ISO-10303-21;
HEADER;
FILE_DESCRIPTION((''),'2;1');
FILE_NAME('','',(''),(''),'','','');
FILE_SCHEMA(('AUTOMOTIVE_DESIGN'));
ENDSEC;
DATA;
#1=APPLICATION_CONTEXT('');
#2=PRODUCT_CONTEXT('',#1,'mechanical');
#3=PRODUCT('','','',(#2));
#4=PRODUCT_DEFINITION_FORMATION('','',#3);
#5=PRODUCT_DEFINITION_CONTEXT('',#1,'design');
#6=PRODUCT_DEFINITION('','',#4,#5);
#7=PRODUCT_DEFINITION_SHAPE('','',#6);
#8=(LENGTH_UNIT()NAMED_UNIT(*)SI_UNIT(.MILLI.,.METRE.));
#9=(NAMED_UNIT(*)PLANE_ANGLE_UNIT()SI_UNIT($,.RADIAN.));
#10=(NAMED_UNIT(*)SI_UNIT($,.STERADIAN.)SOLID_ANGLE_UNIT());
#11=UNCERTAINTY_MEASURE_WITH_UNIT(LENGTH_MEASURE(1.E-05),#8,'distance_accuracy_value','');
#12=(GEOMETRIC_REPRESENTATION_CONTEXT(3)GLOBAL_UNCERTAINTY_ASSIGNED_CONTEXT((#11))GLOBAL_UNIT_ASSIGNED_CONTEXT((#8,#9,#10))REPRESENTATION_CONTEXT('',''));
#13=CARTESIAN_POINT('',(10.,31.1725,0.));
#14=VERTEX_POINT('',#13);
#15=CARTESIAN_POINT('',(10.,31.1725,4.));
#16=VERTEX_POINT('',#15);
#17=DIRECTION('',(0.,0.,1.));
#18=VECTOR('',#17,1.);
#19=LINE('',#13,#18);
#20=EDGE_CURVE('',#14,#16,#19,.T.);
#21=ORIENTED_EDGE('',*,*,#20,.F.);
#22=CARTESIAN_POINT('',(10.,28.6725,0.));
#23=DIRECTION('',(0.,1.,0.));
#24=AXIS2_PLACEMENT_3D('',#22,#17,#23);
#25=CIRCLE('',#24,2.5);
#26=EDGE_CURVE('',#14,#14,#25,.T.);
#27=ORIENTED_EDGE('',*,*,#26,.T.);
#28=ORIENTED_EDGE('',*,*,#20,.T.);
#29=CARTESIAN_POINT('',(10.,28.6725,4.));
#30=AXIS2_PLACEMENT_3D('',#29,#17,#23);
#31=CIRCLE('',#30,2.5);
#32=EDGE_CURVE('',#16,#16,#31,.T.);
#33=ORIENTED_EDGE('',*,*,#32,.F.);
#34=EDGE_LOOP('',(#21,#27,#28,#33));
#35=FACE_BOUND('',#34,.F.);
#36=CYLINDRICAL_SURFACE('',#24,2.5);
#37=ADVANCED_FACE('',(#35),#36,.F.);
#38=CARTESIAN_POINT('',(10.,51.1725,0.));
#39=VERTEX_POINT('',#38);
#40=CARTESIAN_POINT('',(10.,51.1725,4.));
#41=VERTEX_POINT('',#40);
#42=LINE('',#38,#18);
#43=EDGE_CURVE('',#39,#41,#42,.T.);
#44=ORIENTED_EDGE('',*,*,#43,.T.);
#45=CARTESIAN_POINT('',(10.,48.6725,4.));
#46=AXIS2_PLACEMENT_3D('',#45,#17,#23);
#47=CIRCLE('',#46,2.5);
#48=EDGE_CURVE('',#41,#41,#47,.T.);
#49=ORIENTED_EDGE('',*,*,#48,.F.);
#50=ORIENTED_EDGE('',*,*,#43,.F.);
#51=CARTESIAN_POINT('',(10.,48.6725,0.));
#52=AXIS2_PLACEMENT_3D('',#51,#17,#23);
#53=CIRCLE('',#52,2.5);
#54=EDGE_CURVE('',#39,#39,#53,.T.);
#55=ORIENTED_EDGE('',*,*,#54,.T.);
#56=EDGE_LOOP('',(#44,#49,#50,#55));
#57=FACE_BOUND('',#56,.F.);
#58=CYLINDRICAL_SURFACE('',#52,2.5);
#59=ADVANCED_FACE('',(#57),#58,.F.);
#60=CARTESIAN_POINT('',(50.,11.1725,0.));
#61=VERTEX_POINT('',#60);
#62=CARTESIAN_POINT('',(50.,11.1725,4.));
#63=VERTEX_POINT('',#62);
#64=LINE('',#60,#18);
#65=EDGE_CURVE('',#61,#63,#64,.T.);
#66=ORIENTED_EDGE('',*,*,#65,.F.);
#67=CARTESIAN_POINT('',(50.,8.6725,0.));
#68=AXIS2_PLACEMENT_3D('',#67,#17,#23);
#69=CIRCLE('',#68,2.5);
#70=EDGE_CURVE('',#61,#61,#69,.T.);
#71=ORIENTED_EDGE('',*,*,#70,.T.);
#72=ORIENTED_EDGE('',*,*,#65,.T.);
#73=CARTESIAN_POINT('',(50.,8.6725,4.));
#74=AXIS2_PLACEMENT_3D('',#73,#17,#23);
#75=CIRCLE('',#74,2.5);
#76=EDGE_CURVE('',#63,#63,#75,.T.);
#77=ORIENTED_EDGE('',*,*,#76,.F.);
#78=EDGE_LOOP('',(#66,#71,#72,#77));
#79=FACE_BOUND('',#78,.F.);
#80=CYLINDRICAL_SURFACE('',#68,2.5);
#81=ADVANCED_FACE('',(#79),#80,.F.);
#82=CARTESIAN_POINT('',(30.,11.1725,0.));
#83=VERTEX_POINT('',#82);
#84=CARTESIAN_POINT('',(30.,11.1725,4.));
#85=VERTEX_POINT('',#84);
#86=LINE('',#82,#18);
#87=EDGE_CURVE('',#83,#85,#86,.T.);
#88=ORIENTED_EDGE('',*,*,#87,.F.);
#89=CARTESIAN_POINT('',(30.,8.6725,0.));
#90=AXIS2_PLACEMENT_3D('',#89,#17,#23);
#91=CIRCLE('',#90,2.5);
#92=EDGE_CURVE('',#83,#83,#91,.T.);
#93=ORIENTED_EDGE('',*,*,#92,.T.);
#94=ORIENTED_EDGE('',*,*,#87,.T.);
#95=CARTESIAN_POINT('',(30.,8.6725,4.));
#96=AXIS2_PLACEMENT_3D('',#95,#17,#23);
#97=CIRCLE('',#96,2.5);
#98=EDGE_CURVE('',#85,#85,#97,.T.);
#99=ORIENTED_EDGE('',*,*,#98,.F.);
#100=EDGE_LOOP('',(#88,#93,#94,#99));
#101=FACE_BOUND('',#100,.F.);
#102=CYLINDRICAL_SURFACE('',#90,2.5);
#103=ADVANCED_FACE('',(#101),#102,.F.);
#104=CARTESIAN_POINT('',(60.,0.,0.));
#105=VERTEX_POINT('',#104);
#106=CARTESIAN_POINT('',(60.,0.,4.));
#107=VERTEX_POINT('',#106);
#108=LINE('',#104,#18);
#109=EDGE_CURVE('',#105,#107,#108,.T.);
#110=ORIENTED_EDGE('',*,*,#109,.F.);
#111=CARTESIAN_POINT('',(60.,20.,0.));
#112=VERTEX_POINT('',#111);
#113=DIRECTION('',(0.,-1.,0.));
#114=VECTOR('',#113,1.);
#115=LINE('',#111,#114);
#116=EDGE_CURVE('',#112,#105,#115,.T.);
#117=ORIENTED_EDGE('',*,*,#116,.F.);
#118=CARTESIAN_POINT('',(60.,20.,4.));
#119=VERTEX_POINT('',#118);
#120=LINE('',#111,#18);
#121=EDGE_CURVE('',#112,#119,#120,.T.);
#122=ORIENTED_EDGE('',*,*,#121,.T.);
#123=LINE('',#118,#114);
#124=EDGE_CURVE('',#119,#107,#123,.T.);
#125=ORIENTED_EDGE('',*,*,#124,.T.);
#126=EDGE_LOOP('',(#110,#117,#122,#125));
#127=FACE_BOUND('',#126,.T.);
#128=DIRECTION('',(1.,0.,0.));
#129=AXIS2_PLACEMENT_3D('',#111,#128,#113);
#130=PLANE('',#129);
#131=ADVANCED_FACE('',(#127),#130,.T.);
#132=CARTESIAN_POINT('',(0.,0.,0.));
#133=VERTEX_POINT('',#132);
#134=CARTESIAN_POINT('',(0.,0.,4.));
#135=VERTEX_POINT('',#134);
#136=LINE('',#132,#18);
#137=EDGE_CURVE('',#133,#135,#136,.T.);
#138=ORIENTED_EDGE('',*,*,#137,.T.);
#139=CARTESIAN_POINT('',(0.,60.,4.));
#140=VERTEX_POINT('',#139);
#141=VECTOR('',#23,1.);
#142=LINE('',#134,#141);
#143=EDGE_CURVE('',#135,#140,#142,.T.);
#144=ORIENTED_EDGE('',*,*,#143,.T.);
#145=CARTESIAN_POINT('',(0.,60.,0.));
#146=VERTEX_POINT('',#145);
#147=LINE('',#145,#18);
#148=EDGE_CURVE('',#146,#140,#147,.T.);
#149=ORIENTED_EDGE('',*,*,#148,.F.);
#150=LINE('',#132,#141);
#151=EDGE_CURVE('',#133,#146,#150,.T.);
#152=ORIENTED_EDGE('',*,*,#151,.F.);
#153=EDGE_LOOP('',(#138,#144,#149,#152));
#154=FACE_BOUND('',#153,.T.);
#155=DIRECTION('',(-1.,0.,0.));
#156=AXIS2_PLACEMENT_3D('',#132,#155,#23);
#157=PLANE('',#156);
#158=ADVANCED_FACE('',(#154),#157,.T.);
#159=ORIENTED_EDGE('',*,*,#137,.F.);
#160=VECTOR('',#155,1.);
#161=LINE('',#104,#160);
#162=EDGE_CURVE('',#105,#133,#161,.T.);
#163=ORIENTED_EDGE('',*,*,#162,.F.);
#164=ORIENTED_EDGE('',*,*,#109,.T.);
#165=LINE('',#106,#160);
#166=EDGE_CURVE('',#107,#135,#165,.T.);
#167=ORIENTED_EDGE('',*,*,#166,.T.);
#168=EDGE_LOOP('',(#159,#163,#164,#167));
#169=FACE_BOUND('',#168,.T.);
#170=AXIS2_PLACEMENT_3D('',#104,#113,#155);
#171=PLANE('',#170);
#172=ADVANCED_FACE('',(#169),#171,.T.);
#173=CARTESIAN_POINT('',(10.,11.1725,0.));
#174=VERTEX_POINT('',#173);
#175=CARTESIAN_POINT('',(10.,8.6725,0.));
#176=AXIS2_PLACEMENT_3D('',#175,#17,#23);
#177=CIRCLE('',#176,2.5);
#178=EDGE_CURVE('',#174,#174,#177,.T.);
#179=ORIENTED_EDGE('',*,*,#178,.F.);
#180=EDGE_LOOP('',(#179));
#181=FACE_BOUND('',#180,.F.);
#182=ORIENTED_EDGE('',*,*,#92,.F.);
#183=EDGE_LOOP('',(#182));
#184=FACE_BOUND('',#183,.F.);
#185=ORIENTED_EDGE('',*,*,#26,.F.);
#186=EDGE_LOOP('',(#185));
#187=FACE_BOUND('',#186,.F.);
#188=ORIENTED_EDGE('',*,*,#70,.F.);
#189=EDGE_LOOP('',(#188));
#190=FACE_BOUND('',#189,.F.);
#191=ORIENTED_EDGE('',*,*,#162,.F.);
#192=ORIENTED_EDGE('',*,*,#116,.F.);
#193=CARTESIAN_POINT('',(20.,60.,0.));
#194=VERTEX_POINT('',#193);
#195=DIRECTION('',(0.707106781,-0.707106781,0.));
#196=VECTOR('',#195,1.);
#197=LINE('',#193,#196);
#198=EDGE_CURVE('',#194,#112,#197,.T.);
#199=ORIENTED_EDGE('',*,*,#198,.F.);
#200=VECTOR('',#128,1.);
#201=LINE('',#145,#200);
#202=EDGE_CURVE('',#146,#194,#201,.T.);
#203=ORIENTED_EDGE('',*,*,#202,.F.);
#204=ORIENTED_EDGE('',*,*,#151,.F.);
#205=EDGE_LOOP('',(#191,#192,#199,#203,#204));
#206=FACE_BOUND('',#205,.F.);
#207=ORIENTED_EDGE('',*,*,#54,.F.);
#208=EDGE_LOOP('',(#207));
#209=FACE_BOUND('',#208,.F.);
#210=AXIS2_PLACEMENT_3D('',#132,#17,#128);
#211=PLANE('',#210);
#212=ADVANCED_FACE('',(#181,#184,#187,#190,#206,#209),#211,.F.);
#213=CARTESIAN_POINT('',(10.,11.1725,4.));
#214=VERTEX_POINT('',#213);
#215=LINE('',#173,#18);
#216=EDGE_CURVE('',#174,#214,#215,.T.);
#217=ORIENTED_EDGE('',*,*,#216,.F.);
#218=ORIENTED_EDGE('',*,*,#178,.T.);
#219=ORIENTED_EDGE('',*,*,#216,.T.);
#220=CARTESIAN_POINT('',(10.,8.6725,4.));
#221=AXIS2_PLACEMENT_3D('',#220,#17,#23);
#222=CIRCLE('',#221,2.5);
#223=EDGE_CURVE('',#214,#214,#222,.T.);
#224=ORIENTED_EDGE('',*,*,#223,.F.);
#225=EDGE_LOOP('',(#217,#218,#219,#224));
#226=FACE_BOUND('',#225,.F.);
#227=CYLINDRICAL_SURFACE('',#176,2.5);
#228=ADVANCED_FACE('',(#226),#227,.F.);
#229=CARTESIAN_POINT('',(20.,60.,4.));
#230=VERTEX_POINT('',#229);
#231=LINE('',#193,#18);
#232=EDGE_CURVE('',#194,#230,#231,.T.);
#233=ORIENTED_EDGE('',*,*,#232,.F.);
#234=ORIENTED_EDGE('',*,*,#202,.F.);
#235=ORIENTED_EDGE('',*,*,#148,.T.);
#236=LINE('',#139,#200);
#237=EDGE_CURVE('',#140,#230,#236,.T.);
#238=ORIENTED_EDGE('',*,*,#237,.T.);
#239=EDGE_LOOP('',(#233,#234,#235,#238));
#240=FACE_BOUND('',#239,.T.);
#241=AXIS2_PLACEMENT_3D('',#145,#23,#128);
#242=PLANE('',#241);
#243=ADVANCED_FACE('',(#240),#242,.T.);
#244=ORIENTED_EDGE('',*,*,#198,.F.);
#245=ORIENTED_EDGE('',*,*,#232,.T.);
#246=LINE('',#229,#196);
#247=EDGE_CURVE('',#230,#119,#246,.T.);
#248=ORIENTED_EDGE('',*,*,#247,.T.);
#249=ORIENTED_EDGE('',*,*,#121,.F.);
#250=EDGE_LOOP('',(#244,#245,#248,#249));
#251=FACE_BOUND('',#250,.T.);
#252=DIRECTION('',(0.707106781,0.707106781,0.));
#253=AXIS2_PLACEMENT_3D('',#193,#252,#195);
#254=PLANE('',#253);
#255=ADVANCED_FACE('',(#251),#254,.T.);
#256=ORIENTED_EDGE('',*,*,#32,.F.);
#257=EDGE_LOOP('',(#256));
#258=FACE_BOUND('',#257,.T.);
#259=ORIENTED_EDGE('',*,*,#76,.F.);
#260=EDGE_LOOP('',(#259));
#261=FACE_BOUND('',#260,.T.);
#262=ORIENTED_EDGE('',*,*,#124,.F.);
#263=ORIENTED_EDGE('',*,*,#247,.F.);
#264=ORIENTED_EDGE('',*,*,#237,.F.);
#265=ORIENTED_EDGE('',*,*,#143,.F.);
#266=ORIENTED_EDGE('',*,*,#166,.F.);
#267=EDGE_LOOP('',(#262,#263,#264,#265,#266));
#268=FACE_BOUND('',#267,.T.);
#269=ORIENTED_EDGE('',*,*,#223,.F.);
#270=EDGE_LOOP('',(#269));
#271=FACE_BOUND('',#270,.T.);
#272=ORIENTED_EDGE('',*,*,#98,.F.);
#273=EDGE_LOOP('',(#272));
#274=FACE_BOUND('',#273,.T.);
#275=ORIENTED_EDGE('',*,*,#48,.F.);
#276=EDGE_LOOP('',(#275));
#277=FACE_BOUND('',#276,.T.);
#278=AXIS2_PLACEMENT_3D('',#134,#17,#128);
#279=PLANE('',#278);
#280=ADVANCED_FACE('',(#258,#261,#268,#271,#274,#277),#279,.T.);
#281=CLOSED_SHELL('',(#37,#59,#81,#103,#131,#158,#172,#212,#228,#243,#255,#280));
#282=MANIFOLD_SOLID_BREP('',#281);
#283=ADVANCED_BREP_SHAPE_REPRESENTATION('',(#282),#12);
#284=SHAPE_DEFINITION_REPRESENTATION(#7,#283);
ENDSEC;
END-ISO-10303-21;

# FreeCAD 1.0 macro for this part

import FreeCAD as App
import Part
import Sketcher
Q = App.Units.Quantity


def add_polygon(sketch, points):
    """Adds a closed chain of lines whose ends are joined by coincident constraints."""
    first, n = sketch.GeometryCount, len(points)
    for a, b in zip(points, points[1:] + points[:1]):
        sketch.addGeometry(Part.LineSegment(App.Vector(*a, 0), App.Vector(*b, 0)), False)
    for i in range(n):
        sketch.addConstraint(Sketcher.Constraint("Coincident", first + i, 2, first + (i + 1) % n, 1))

doc = App.newDocument("Part")
params = doc.addObject("Spreadsheet::Sheet", "Params")
for row, (alias, value) in enumerate([
    ("sketch1_width", "60 mm"),
    ("sketch1_width2", "20 mm"),
    ("pad1_length", "4 mm"),
    ("sketch2_diameter", "5 mm"),
    ("hole_diameter", "5 mm"),
], start=1):
    params.set(f"A{row}", alias)
    params.set(f"B{row}", "=" + value)
    params.setAlias(f"B{row}", alias)

body = doc.addObject("PartDesign::Body", "Body")

# Sketch on XY plane
sketch1 = body.newObject("Sketcher::SketchObject", "Sketch")
sketch1.AttachmentSupport = (doc.getObject("XY_Plane"), [""])
sketch1.MapMode = "FlatFace"
add_polygon(sketch1, [(0, 60), (0, 0), (60, 0), (60, 20), (20, 60)])  # lines 0-4
sketch1.addConstraint([
    Sketcher.Constraint("Vertical", 0),
    Sketcher.Constraint("Horizontal", 1),
    Sketcher.Constraint("Vertical", 2),
    Sketcher.Constraint("Horizontal", 4),
    Sketcher.Constraint("Coincident", 0, 2, -1, 1),
    Sketcher.Constraint("Equal", 1, 0),
    Sketcher.Constraint("Equal", 4, 2),
    Sketcher.Constraint("DistanceX", 1, 1, 1, 2, Q("60 mm")),
    Sketcher.Constraint("DistanceX", 4, 2, 4, 1, Q("20 mm")),
])
sketch1.setExpression("Constraints[12]", "Params.sketch1_width")
sketch1.setExpression("Constraints[13]", "Params.sketch1_width2")
pad1 = body.newObject("PartDesign::Pad", "Pad")
pad1.Profile = sketch1
pad1.setExpression("Length", "Params.pad1_length")

# Sketch on XY plane
sketch2 = body.newObject("Sketcher::SketchObject", "Sketch001")
sketch2.AttachmentSupport = (doc.getObject("XY_Plane"), [""])
sketch2.MapMode = "FlatFace"
sketch2.addGeometry([
    Part.Circle(App.Vector(10, 8.7, 0), App.Vector(0, 0, 1), 2.5),  # 0
    Part.Circle(App.Vector(30, 8.7, 0), App.Vector(0, 0, 1), 2.5),  # 1
    Part.Circle(App.Vector(50, 8.7, 0), App.Vector(0, 0, 1), 2.5),  # 2
    Part.Circle(App.Vector(10, 28.7, 0), App.Vector(0, 0, 1), 2.5),  # 3
    Part.Circle(App.Vector(10, 48.7, 0), App.Vector(0, 0, 1), 2.5),  # 4
], False)
sketch2.addConstraint([
    Sketcher.Constraint("Equal", 0, 1),
    Sketcher.Constraint("Equal", 1, 2),
    Sketcher.Constraint("Equal", 2, 3),
    Sketcher.Constraint("Equal", 3, 4),
    Sketcher.Constraint("Horizontal", 0, 3, 1, 3),
    Sketcher.Constraint("Horizontal", 1, 3, 2, 3),
    Sketcher.Constraint("Vertical", 0, 3, 3, 3),
    Sketcher.Constraint("Vertical", 3, 3, 4, 3),
    Sketcher.Constraint("Diameter", 0, Q("5 mm")),
    Sketcher.Constraint("DistanceX", -1, 1, 0, 3, Q("10 mm")),
    Sketcher.Constraint("DistanceX", -1, 1, 1, 3, Q("30 mm")),
    Sketcher.Constraint("DistanceX", -1, 1, 2, 3, Q("50 mm")),
    Sketcher.Constraint("DistanceY", 0, 3, 3, 3, Q("20 mm")),
    Sketcher.Constraint("DistanceY", 3, 3, 4, 3, Q("20 mm")),
    Sketcher.Constraint("DistanceY", -1, 1, 0, 3, Q("8.6725 mm")),
])
sketch2.setExpression("Constraints[8]", "Params.sketch2_diameter")
doc.recompute()
hole = body.newObject("PartDesign::Hole", "Hole")
hole.Profile = sketch2
hole.ThreadType = "None"
hole.setExpression("Diameter", "Params.hole_diameter")
hole.DepthType = "ThroughAll"
hole.Reversed = True

doc.recompute()
